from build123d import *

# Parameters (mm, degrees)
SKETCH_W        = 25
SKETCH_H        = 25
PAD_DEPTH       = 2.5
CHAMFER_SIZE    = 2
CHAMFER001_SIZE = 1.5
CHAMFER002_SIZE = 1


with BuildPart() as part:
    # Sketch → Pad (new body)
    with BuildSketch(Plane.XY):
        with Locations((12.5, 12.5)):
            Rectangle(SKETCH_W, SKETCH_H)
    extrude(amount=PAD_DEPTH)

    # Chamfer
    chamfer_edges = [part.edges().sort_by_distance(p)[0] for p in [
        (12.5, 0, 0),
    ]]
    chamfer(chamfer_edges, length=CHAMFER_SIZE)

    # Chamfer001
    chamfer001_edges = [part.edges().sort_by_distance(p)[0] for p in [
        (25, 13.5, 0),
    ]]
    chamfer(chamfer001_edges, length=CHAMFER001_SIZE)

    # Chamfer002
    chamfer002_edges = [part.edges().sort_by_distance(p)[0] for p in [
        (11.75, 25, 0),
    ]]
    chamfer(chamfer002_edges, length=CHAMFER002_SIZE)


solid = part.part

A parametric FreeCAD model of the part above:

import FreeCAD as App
import Part
import Sketcher


def edges_at(feature, points):
    """Names of the edges that pass closest to the given points."""
    edges = feature.Shape.Edges
    near = lambda p: min(range(len(edges)), key=lambda i: edges[i].distToShape(Part.Vertex(*p))[0])
    return sorted({f"Edge{near(p) + 1}" for p in points})


def add_polygon(sketch, points):
    """Adds a closed chain of lines whose ends are joined by coincident constraints."""
    first, n = sketch.GeometryCount, len(points)
    for a, b in zip(points, points[1:] + points[:1]):
        sketch.addGeometry(Part.LineSegment(App.Vector(*a, 0), App.Vector(*b, 0)), False)
    for i in range(n):
        sketch.addConstraint(Sketcher.Constraint("Coincident", first + i, 2, first + (i + 1) % n, 1))

doc = App.newDocument("Part")
body = doc.addObject("PartDesign::Body", "Body")

# Sketch on XY plane
sketch1 = body.newObject("Sketcher::SketchObject", "Sketch")
sketch1.AttachmentSupport = (doc.getObject("XY_Plane"), [""])
sketch1.MapMode = "FlatFace"
add_polygon(sketch1, [(0, 25), (0, 0), (25, 0), (25, 25)])  # lines 0-3
sketch1.addConstraint([
    Sketcher.Constraint("Vertical", 0),
    Sketcher.Constraint("Horizontal", 1),
    Sketcher.Constraint("Vertical", 2),
    Sketcher.Constraint("Horizontal", 3),
    Sketcher.Constraint("Coincident", 0, 2, -1, 1),
    Sketcher.Constraint("Equal", 3, 0),
    Sketcher.Constraint("DistanceX", 1, 1, 1, 2, 25.0),
])
pad1 = body.newObject("PartDesign::Pad", "Pad")
pad1.Profile = sketch1
pad1.Length = 2.5
doc.recompute()

chamfer = body.newObject("PartDesign::Chamfer", "Chamfer")
chamfer.Base = (pad1, edges_at(pad1, [(12.5, 0, 0)]))
chamfer.Size = 2
doc.recompute()

chamfer2 = body.newObject("PartDesign::Chamfer", "Chamfer001")
chamfer2.Base = (chamfer, edges_at(chamfer, [(25, 13.5, 0)]))
chamfer2.Size = 1.5
doc.recompute()

chamfer3 = body.newObject("PartDesign::Chamfer", "Chamfer002")
chamfer3.Base = (chamfer2, edges_at(chamfer2, [(11.75, 25, 0)]))
chamfer3.Size = 1

doc.recompute()
